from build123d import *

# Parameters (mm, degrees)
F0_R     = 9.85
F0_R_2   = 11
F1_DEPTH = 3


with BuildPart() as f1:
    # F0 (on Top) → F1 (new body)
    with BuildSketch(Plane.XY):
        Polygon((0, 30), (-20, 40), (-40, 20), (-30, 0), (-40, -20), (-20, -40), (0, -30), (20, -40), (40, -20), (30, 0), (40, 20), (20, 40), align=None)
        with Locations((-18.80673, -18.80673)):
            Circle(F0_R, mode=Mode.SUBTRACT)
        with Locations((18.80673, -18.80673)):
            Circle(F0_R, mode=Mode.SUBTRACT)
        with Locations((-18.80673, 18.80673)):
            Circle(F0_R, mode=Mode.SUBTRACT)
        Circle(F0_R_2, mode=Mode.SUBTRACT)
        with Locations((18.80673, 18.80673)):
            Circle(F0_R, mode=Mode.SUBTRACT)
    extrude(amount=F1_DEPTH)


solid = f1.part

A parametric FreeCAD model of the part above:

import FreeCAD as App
import Part
import Sketcher

V = App.Vector

doc = App.newDocument("Part")
body = doc.addObject("PartDesign::Body", "Body")

# Sketch on XY plane
sketch1 = body.newObject("Sketcher::SketchObject", "Sketch")
sketch1.AttachmentSupport = (doc.getObject("XY_Plane"), [""])
sketch1.MapMode = "FlatFace"
sketch1.addGeometry([
    Part.LineSegment(V(0, 30, 0), V(-20, 40, 0)),  # 0
    Part.LineSegment(V(-20, 40, 0), V(-40, 20, 0)),  # 1
    Part.LineSegment(V(-40, 20, 0), V(-30, 0, 0)),  # 2
    Part.LineSegment(V(-30, 0, 0), V(-40, -20, 0)),  # 3
    Part.LineSegment(V(-40, -20, 0), V(-20, -40, 0)),  # 4
    Part.LineSegment(V(-20, -40, 0), V(0, -30, 0)),  # 5
    Part.LineSegment(V(0, -30, 0), V(20, -40, 0)),  # 6
    Part.LineSegment(V(20, -40, 0), V(40, -20, 0)),  # 7
    Part.LineSegment(V(40, -20, 0), V(30, 0, 0)),  # 8
    Part.LineSegment(V(30, 0, 0), V(40, 20, 0)),  # 9
    Part.LineSegment(V(40, 20, 0), V(20, 40, 0)),  # 10
    Part.LineSegment(V(20, 40, 0), V(0, 30, 0)),  # 11
    Part.Circle(V(-18.80673, -18.80673, 0), V(0, 0, 1), 9.85),  # 12
    Part.Circle(V(18.80673, -18.80673, 0), V(0, 0, 1), 9.85),  # 13
    Part.Circle(V(-18.80673, 18.80673, 0), V(0, 0, 1), 9.85),  # 14
    Part.Circle(V(0, 0, 0), V(0, 0, 1), 11),  # 15
    Part.Circle(V(18.80673, 18.80673, 0), V(0, 0, 1), 9.85),  # 16
], False)
sketch1.addConstraint([
    Sketcher.Constraint("Coincident", 0, 2, 1, 1),
    Sketcher.Constraint("Coincident", 1, 2, 2, 1),
    Sketcher.Constraint("Coincident", 2, 2, 3, 1),
    Sketcher.Constraint("Coincident", 3, 2, 4, 1),
    Sketcher.Constraint("Coincident", 4, 2, 5, 1),
    Sketcher.Constraint("Coincident", 5, 2, 6, 1),
    Sketcher.Constraint("Coincident", 6, 2, 7, 1),
    Sketcher.Constraint("Coincident", 7, 2, 8, 1),
    Sketcher.Constraint("Coincident", 8, 2, 9, 1),
    Sketcher.Constraint("Coincident", 9, 2, 10, 1),
    Sketcher.Constraint("Coincident", 10, 2, 11, 1),
    Sketcher.Constraint("Coincident", 11, 2, 0, 1),
    Sketcher.Constraint("Coincident", 15, 3, -1, 1),
    Sketcher.Constraint("Equal", 12, 13),
    Sketcher.Constraint("Equal", 13, 14),
    Sketcher.Constraint("Equal", 14, 16),
    Sketcher.Constraint("Symmetric", 13, 3, 14, 3, -1, 1),
    Sketcher.Constraint("Symmetric", 12, 3, 16, 3, -1, 1),
    Sketcher.Constraint("Symmetric", 0, 2, 6, 2, -1, 1),
    Sketcher.Constraint("Symmetric", 1, 2, 7, 2, -1, 1),
    Sketcher.Constraint("Symmetric", 2, 2, 8, 2, -1, 1),
    Sketcher.Constraint("Symmetric", 3, 2, 9, 2, -1, 1),
    Sketcher.Constraint("Symmetric", 4, 2, 10, 2, -1, 1),
    Sketcher.Constraint("Symmetric", 5, 2, 11, 2, -1, 1),
    Sketcher.Constraint("Symmetric", 12, 3, 13, 3, -2),
    Sketcher.Constraint("Symmetric", 4, 2, 6, 2, -2),
    Sketcher.Constraint("Symmetric", 3, 2, 7, 2, -2),
    Sketcher.Constraint("PointOnObject", 2, 2, -1),
    Sketcher.Constraint("PointOnObject", 5, 2, -2),
    Sketcher.Constraint("Perpendicular", 0, 3),
    Sketcher.Constraint("Perpendicular", 1, 4),
    Sketcher.Constraint("Equal", 0, 2),
    Sketcher.Constraint("Diameter", 15, 22.0),
    Sketcher.Constraint("Diameter", 12, 19.7),
    Sketcher.Constraint("DistanceX", 0, 2, -1, 1, 20.0),
    Sketcher.Constraint("DistanceY", -1, 1, 0, 2, 40.0),
    Sketcher.Constraint("DistanceX", 2, 2, -1, 1, 30.0),
    Sketcher.Constraint("DistanceX", 12, 3, -1, 1, 18.80673),
    Sketcher.Constraint("DistanceY", 12, 3, -1, 1, 18.80673),
])
pad1 = body.newObject("PartDesign::Pad", "Pad")
pad1.Profile = sketch1
pad1.Length = 3

doc.recompute()
